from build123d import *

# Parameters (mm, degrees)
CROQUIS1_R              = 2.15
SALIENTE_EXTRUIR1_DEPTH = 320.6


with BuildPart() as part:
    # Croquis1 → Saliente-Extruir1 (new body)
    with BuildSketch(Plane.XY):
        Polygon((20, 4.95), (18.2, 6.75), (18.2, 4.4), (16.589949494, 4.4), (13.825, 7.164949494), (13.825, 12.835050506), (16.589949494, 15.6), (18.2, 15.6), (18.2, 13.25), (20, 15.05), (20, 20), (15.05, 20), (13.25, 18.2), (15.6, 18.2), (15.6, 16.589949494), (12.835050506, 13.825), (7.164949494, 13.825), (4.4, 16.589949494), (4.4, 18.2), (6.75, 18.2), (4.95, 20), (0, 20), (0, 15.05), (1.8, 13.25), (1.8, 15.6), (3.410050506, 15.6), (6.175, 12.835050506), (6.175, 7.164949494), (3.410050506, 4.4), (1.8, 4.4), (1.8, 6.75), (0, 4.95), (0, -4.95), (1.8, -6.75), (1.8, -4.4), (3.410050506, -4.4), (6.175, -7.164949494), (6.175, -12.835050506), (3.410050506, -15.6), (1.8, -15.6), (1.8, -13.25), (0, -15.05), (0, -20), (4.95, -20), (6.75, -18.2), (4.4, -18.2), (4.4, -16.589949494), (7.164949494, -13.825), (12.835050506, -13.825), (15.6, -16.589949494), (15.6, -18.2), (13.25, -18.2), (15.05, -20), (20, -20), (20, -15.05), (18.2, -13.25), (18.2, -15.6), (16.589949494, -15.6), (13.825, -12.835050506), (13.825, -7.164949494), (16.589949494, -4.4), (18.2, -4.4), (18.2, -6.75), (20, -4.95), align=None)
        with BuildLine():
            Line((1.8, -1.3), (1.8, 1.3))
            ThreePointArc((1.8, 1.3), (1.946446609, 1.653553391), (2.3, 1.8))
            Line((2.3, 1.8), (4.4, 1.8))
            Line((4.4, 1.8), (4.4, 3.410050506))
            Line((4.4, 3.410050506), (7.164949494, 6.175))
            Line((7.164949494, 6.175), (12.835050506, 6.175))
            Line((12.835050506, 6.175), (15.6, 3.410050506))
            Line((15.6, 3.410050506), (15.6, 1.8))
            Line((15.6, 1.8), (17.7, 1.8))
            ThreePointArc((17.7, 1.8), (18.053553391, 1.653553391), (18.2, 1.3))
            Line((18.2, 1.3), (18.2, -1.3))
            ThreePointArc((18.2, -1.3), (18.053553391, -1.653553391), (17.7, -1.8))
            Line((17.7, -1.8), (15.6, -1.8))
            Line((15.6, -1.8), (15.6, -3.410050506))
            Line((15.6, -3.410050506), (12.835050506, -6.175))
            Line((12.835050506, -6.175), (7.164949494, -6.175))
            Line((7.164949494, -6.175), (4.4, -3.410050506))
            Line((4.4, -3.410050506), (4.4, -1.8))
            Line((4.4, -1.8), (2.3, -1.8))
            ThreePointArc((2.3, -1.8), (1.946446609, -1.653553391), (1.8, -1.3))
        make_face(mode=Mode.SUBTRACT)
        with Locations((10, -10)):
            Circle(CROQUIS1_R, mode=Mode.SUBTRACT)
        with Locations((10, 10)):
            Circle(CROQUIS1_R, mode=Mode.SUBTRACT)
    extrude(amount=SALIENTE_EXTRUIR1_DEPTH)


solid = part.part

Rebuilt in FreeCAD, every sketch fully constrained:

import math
import FreeCAD as App
import Part
import Sketcher
from FreeCAD import Vector
Q = App.Units.Quantity

doc = App.newDocument("Part")
body = doc.addObject("PartDesign::Body", "Body")

sketch1 = body.newObject("Sketcher::SketchObject", "Sketch")
sketch1.AttachmentSupport = (doc.getObject("XY_Plane"), [""])
sketch1.MapMode = "FlatFace"
sketch1.addGeometry([
    Part.LineSegment(Vector(20, 4.95, 0), Vector(18.2, 6.75, 0)),
    Part.LineSegment(Vector(18.2, 6.75, 0), Vector(18.2, 4.4, 0)),
    Part.LineSegment(Vector(18.2, 4.4, 0), Vector(16.59, 4.4, 0)),
    Part.LineSegment(Vector(16.59, 4.4, 0), Vector(13.82, 7.16, 0)),
    Part.LineSegment(Vector(13.82, 7.16, 0), Vector(13.82, 12.84, 0)),
    Part.LineSegment(Vector(13.82, 12.84, 0), Vector(16.59, 15.6, 0)),
    Part.LineSegment(Vector(16.59, 15.6, 0), Vector(18.2, 15.6, 0)),
    Part.LineSegment(Vector(18.2, 15.6, 0), Vector(18.2, 13.25, 0)),
    Part.LineSegment(Vector(18.2, 13.25, 0), Vector(20, 15.05, 0)),
    Part.LineSegment(Vector(20, 15.05, 0), Vector(20, 20, 0)),
    Part.LineSegment(Vector(20, 20, 0), Vector(15.05, 20, 0)),
    Part.LineSegment(Vector(15.05, 20, 0), Vector(13.25, 18.2, 0)),
    Part.LineSegment(Vector(13.25, 18.2, 0), Vector(15.6, 18.2, 0)),
    Part.LineSegment(Vector(15.6, 18.2, 0), Vector(15.6, 16.59, 0)),
    Part.LineSegment(Vector(15.6, 16.59, 0), Vector(12.84, 13.82, 0)),
    Part.LineSegment(Vector(12.84, 13.82, 0), Vector(7.16, 13.82, 0)),
    Part.LineSegment(Vector(7.16, 13.82, 0), Vector(4.4, 16.59, 0)),
    Part.LineSegment(Vector(4.4, 16.59, 0), Vector(4.4, 18.2, 0)),
    Part.LineSegment(Vector(4.4, 18.2, 0), Vector(6.75, 18.2, 0)),
    Part.LineSegment(Vector(6.75, 18.2, 0), Vector(4.95, 20, 0)),
    Part.LineSegment(Vector(4.95, 20, 0), Vector(0, 20, 0)),
    Part.LineSegment(Vector(0, 20, 0), Vector(0, 15.05, 0)),
    Part.LineSegment(Vector(0, 15.05, 0), Vector(1.8, 13.25, 0)),
    Part.LineSegment(Vector(1.8, 13.25, 0), Vector(1.8, 15.6, 0)),
    Part.LineSegment(Vector(1.8, 15.6, 0), Vector(3.41, 15.6, 0)),
    Part.LineSegment(Vector(3.41, 15.6, 0), Vector(6.17, 12.84, 0)),
    Part.LineSegment(Vector(6.17, 12.84, 0), Vector(6.17, 7.16, 0)),
    Part.LineSegment(Vector(6.17, 7.16, 0), Vector(3.41, 4.4, 0)),
    Part.LineSegment(Vector(3.41, 4.4, 0), Vector(1.8, 4.4, 0)),
    Part.LineSegment(Vector(1.8, 4.4, 0), Vector(1.8, 6.75, 0)),
    Part.LineSegment(Vector(1.8, 6.75, 0), Vector(0, 4.95, 0)),
    Part.LineSegment(Vector(0, 4.95, 0), Vector(0, -4.95, 0)),
    Part.LineSegment(Vector(0, -4.95, 0), Vector(1.8, -6.75, 0)),
    Part.LineSegment(Vector(1.8, -6.75, 0), Vector(1.8, -4.4, 0)),
    Part.LineSegment(Vector(1.8, -4.4, 0), Vector(3.41, -4.4, 0)),
    Part.LineSegment(Vector(3.41, -4.4, 0), Vector(6.17, -7.16, 0)),
    Part.LineSegment(Vector(6.17, -7.16, 0), Vector(6.17, -12.84, 0)),
    Part.LineSegment(Vector(6.17, -12.84, 0), Vector(3.41, -15.6, 0)),
    Part.LineSegment(Vector(3.41, -15.6, 0), Vector(1.8, -15.6, 0)),
    Part.LineSegment(Vector(1.8, -15.6, 0), Vector(1.8, -13.25, 0)),
    Part.LineSegment(Vector(1.8, -13.25, 0), Vector(0, -15.05, 0)),
    Part.LineSegment(Vector(0, -15.05, 0), Vector(0, -20, 0)),
    Part.LineSegment(Vector(0, -20, 0), Vector(4.95, -20, 0)),
    Part.LineSegment(Vector(4.95, -20, 0), Vector(6.75, -18.2, 0)),
    Part.LineSegment(Vector(6.75, -18.2, 0), Vector(4.4, -18.2, 0)),
    Part.LineSegment(Vector(4.4, -18.2, 0), Vector(4.4, -16.59, 0)),
    Part.LineSegment(Vector(4.4, -16.59, 0), Vector(7.16, -13.82, 0)),
    Part.LineSegment(Vector(7.16, -13.82, 0), Vector(12.84, -13.82, 0)),
    Part.LineSegment(Vector(12.84, -13.82, 0), Vector(15.6, -16.59, 0)),
    Part.LineSegment(Vector(15.6, -16.59, 0), Vector(15.6, -18.2, 0)),
    Part.LineSegment(Vector(15.6, -18.2, 0), Vector(13.25, -18.2, 0)),
    Part.LineSegment(Vector(13.25, -18.2, 0), Vector(15.05, -20, 0)),
    Part.LineSegment(Vector(15.05, -20, 0), Vector(20, -20, 0)),
    Part.LineSegment(Vector(20, -20, 0), Vector(20, -15.05, 0)),
    Part.LineSegment(Vector(20, -15.05, 0), Vector(18.2, -13.25, 0)),
    Part.LineSegment(Vector(18.2, -13.25, 0), Vector(18.2, -15.6, 0)),
    Part.LineSegment(Vector(18.2, -15.6, 0), Vector(16.59, -15.6, 0)),
    Part.LineSegment(Vector(16.59, -15.6, 0), Vector(13.82, -12.84, 0)),
    Part.LineSegment(Vector(13.82, -12.84, 0), Vector(13.82, -7.16, 0)),
    Part.LineSegment(Vector(13.82, -7.16, 0), Vector(16.59, -4.4, 0)),
    Part.LineSegment(Vector(16.59, -4.4, 0), Vector(18.2, -4.4, 0)),
    Part.LineSegment(Vector(18.2, -4.4, 0), Vector(18.2, -6.75, 0)),
    Part.LineSegment(Vector(18.2, -6.75, 0), Vector(20, -4.95, 0)),
    Part.LineSegment(Vector(20, -4.95, 0), Vector(20, 4.95, 0)),
    Part.Circle(Vector(10, -10, 0), Vector(0, 0, 1), 2.15),
    Part.ArcOfCircle(Part.Circle(Vector(2.3, -1.3, 0), Vector(0, 0, 1), 0.5), math.radians(180), math.radians(270)),
    Part.LineSegment(Vector(1.8, -1.3, 0), Vector(1.8, 1.3, 0)),
    Part.ArcOfCircle(Part.Circle(Vector(2.3, 1.3, 0), Vector(0, 0, 1), 0.5), math.radians(90), math.radians(180)),
    Part.LineSegment(Vector(2.3, 1.8, 0), Vector(4.4, 1.8, 0)),
    Part.LineSegment(Vector(4.4, 1.8, 0), Vector(4.4, 3.41, 0)),
    Part.LineSegment(Vector(4.4, 3.41, 0), Vector(7.16, 6.17, 0)),
    Part.LineSegment(Vector(7.16, 6.17, 0), Vector(12.84, 6.17, 0)),
    Part.LineSegment(Vector(12.84, 6.17, 0), Vector(15.6, 3.41, 0)),
    Part.LineSegment(Vector(15.6, 3.41, 0), Vector(15.6, 1.8, 0)),
    Part.LineSegment(Vector(15.6, 1.8, 0), Vector(17.7, 1.8, 0)),
    Part.ArcOfCircle(Part.Circle(Vector(17.7, 1.3, 0), Vector(0, 0, 1), 0.5), math.radians(0), math.radians(90)),
    Part.LineSegment(Vector(18.2, 1.3, 0), Vector(18.2, -1.3, 0)),
    Part.ArcOfCircle(Part.Circle(Vector(17.7, -1.3, 0), Vector(0, 0, 1), 0.5), math.radians(-90), math.radians(0)),
    Part.LineSegment(Vector(17.7, -1.8, 0), Vector(15.6, -1.8, 0)),
    Part.LineSegment(Vector(15.6, -1.8, 0), Vector(15.6, -3.41, 0)),
    Part.LineSegment(Vector(15.6, -3.41, 0), Vector(12.84, -6.17, 0)),
    Part.LineSegment(Vector(12.84, -6.17, 0), Vector(7.16, -6.17, 0)),
    Part.LineSegment(Vector(7.16, -6.17, 0), Vector(4.4, -3.41, 0)),
    Part.LineSegment(Vector(4.4, -3.41, 0), Vector(4.4, -1.8, 0)),
    Part.LineSegment(Vector(4.4, -1.8, 0), Vector(2.3, -1.8, 0)),
    Part.Circle(Vector(10, 10, 0), Vector(0, 0, 1), 2.15),
], False)
sketch1.addConstraint([
    Sketcher.Constraint("Coincident", 0, 2, 1, 1),
    Sketcher.Constraint("Coincident", 1, 2, 2, 1),
    Sketcher.Constraint("Coincident", 2, 2, 3, 1),
    Sketcher.Constraint("Coincident", 3, 2, 4, 1),
    Sketcher.Constraint("Coincident", 4, 2, 5, 1),
    Sketcher.Constraint("Coincident", 5, 2, 6, 1),
    Sketcher.Constraint("Coincident", 6, 2, 7, 1),
    Sketcher.Constraint("Coincident", 7, 2, 8, 1),
    Sketcher.Constraint("Coincident", 8, 2, 9, 1),
    Sketcher.Constraint("Coincident", 9, 2, 10, 1),
    Sketcher.Constraint("Coincident", 10, 2, 11, 1),
    Sketcher.Constraint("Coincident", 11, 2, 12, 1),
    Sketcher.Constraint("Coincident", 12, 2, 13, 1),
    Sketcher.Constraint("Coincident", 13, 2, 14, 1),
    Sketcher.Constraint("Coincident", 14, 2, 15, 1),
    Sketcher.Constraint("Coincident", 15, 2, 16, 1),
    Sketcher.Constraint("Coincident", 16, 2, 17, 1),
    Sketcher.Constraint("Coincident", 17, 2, 18, 1),
    Sketcher.Constraint("Coincident", 18, 2, 19, 1),
    Sketcher.Constraint("Coincident", 19, 2, 20, 1),
    Sketcher.Constraint("Coincident", 20, 2, 21, 1),
    Sketcher.Constraint("Coincident", 21, 2, 22, 1),
    Sketcher.Constraint("Coincident", 22, 2, 23, 1),
    Sketcher.Constraint("Coincident", 23, 2, 24, 1),
    Sketcher.Constraint("Coincident", 24, 2, 25, 1),
    Sketcher.Constraint("Coincident", 25, 2, 26, 1),
    Sketcher.Constraint("Coincident", 26, 2, 27, 1),
    Sketcher.Constraint("Coincident", 27, 2, 28, 1),
    Sketcher.Constraint("Coincident", 28, 2, 29, 1),
    Sketcher.Constraint("Coincident", 29, 2, 30, 1),
    Sketcher.Constraint("Coincident", 30, 2, 31, 1),
    Sketcher.Constraint("Coincident", 31, 2, 32, 1),
    Sketcher.Constraint("Coincident", 32, 2, 33, 1),
    Sketcher.Constraint("Coincident", 33, 2, 34, 1),
    Sketcher.Constraint("Coincident", 34, 2, 35, 1),
    Sketcher.Constraint("Coincident", 35, 2, 36, 1),
    Sketcher.Constraint("Coincident", 36, 2, 37, 1),
    Sketcher.Constraint("Coincident", 37, 2, 38, 1),
    Sketcher.Constraint("Coincident", 38, 2, 39, 1),
    Sketcher.Constraint("Coincident", 39, 2, 40, 1),
    Sketcher.Constraint("Coincident", 40, 2, 41, 1),
    Sketcher.Constraint("Coincident", 41, 2, 42, 1),
    Sketcher.Constraint("Coincident", 42, 2, 43, 1),
    Sketcher.Constraint("Coincident", 43, 2, 44, 1),
    Sketcher.Constraint("Coincident", 44, 2, 45, 1),
    Sketcher.Constraint("Coincident", 45, 2, 46, 1),
    Sketcher.Constraint("Coincident", 46, 2, 47, 1),
    Sketcher.Constraint("Coincident", 47, 2, 48, 1),
    Sketcher.Constraint("Coincident", 48, 2, 49, 1),
    Sketcher.Constraint("Coincident", 49, 2, 50, 1),
    Sketcher.Constraint("Coincident", 50, 2, 51, 1),
    Sketcher.Constraint("Coincident", 51, 2, 52, 1),
    Sketcher.Constraint("Coincident", 52, 2, 53, 1),
    Sketcher.Constraint("Coincident", 53, 2, 54, 1),
    Sketcher.Constraint("Coincident", 54, 2, 55, 1),
    Sketcher.Constraint("Coincident", 55, 2, 56, 1),
    Sketcher.Constraint("Coincident", 56, 2, 57, 1),
    Sketcher.Constraint("Coincident", 57, 2, 58, 1),
    Sketcher.Constraint("Coincident", 58, 2, 59, 1),
    Sketcher.Constraint("Coincident", 59, 2, 60, 1),
    Sketcher.Constraint("Coincident", 60, 2, 61, 1),
    Sketcher.Constraint("Coincident", 61, 2, 62, 1),
    Sketcher.Constraint("Coincident", 62, 2, 63, 1),
    Sketcher.Constraint("Coincident", 63, 2, 0, 1),
    Sketcher.Constraint("Tangent", 65, 1, 66, 1),
    Sketcher.Constraint("Tangent", 66, 2, 67, 2),
    Sketcher.Constraint("Tangent", 67, 1, 68, 1),
    Sketcher.Constraint("Coincident", 68, 2, 69, 1),
    Sketcher.Constraint("Coincident", 69, 2, 70, 1),
    Sketcher.Constraint("Coincident", 70, 2, 71, 1),
    Sketcher.Constraint("Coincident", 71, 2, 72, 1),
    Sketcher.Constraint("Coincident", 72, 2, 73, 1),
    Sketcher.Constraint("Coincident", 73, 2, 74, 1),
    Sketcher.Constraint("Tangent", 74, 2, 75, 2),
    Sketcher.Constraint("Tangent", 75, 1, 76, 1),
    Sketcher.Constraint("Tangent", 76, 2, 77, 2),
    Sketcher.Constraint("Tangent", 77, 1, 78, 1),
    Sketcher.Constraint("Coincident", 78, 2, 79, 1),
    Sketcher.Constraint("Coincident", 79, 2, 80, 1),
    Sketcher.Constraint("Coincident", 80, 2, 81, 1),
    Sketcher.Constraint("Coincident", 81, 2, 82, 1),
    Sketcher.Constraint("Coincident", 82, 2, 83, 1),
    Sketcher.Constraint("Coincident", 83, 2, 84, 1),
    Sketcher.Constraint("Tangent", 84, 2, 65, 2),
    Sketcher.Constraint("Vertical", 1),
    Sketcher.Constraint("Horizontal", 2),
    Sketcher.Constraint("Vertical", 4),
    Sketcher.Constraint("Horizontal", 6),
    Sketcher.Constraint("Vertical", 7),
    Sketcher.Constraint("Vertical", 9),
    Sketcher.Constraint("Horizontal", 10),
    Sketcher.Constraint("Horizontal", 12),
    Sketcher.Constraint("Vertical", 13),
    Sketcher.Constraint("Horizontal", 15),
    Sketcher.Constraint("Vertical", 17),
    Sketcher.Constraint("Horizontal", 18),
    Sketcher.Constraint("Horizontal", 20),
    Sketcher.Constraint("Vertical", 21),
    Sketcher.Constraint("Vertical", 23),
    Sketcher.Constraint("Horizontal", 24),
    Sketcher.Constraint("Vertical", 26),
    Sketcher.Constraint("Horizontal", 28),
    Sketcher.Constraint("Vertical", 29),
    Sketcher.Constraint("Vertical", 31),
    Sketcher.Constraint("Vertical", 33),
    Sketcher.Constraint("Horizontal", 34),
    Sketcher.Constraint("Vertical", 36),
    Sketcher.Constraint("Horizontal", 38),
    Sketcher.Constraint("Vertical", 39),
    Sketcher.Constraint("Vertical", 41),
    Sketcher.Constraint("Horizontal", 42),
    Sketcher.Constraint("Horizontal", 44),
    Sketcher.Constraint("Vertical", 45),
    Sketcher.Constraint("Horizontal", 47),
    Sketcher.Constraint("Vertical", 49),
    Sketcher.Constraint("Horizontal", 50),
    Sketcher.Constraint("Horizontal", 52),
    Sketcher.Constraint("Vertical", 53),
    Sketcher.Constraint("Vertical", 55),
    Sketcher.Constraint("Horizontal", 56),
    Sketcher.Constraint("Vertical", 58),
    Sketcher.Constraint("Horizontal", 60),
    Sketcher.Constraint("Vertical", 61),
    Sketcher.Constraint("Vertical", 63),
    Sketcher.Constraint("Vertical", 66),
    Sketcher.Constraint("Horizontal", 68),
    Sketcher.Constraint("Vertical", 69),
    Sketcher.Constraint("Horizontal", 71),
    Sketcher.Constraint("Vertical", 73),
    Sketcher.Constraint("Horizontal", 74),
    Sketcher.Constraint("Vertical", 76),
    Sketcher.Constraint("Horizontal", 78),
    Sketcher.Constraint("Vertical", 79),
    Sketcher.Constraint("Horizontal", 81),
    Sketcher.Constraint("Vertical", 83),
    Sketcher.Constraint("Horizontal", 84),
    Sketcher.Constraint("Equal", 65, 67),
    Sketcher.Constraint("Equal", 67, 75),
    Sketcher.Constraint("Equal", 75, 77),
    Sketcher.Constraint("Equal", 64, 85),
    Sketcher.Constraint("Symmetric", 30, 2, 31, 2, -1, 1),
    Sketcher.Constraint("Symmetric", 21, 2, 40, 2, -1, 1),
    Sketcher.Constraint("Symmetric", 64, 3, 85, 3, -1),
    Sketcher.Constraint("Symmetric", 29, 2, 32, 2, -1),
    Sketcher.Constraint("Symmetric", 27, 2, 34, 2, -1),
    Sketcher.Constraint("Symmetric", 26, 2, 35, 2, -1),
    Sketcher.Constraint("Symmetric", 24, 2, 37, 2, -1),
    Sketcher.Constraint("Symmetric", 22, 2, 39, 2, -1),
    Sketcher.Constraint("Symmetric", 20, 2, 41, 2, -1),
    Sketcher.Constraint("Symmetric", 18, 2, 43, 2, -1),
    Sketcher.Constraint("Symmetric", 16, 2, 45, 2, -1),
    Sketcher.Constraint("Symmetric", 15, 2, 46, 2, -1),
    Sketcher.Constraint("Symmetric", 13, 2, 48, 2, -1),
    Sketcher.Constraint("Symmetric", 11, 2, 50, 2, -1),
    Sketcher.Constraint("Symmetric", 10, 2, 51, 2, -1),
    Sketcher.Constraint("Symmetric", 8, 2, 53, 2, -1),
    Sketcher.Constraint("Symmetric", 7, 2, 54, 2, -1),
    Sketcher.Constraint("Symmetric", 5, 2, 56, 2, -1),
    Sketcher.Constraint("Symmetric", 4, 2, 57, 2, -1),
    Sketcher.Constraint("Symmetric", 2, 2, 59, 2, -1),
    Sketcher.Constraint("Symmetric", 0, 2, 61, 2, -1),
    Sketcher.Constraint("Symmetric", 73, 2, 78, 2, -1),
    Sketcher.Constraint("Symmetric", 71, 2, 80, 2, -1),
    Sketcher.Constraint("Symmetric", 69, 2, 82, 2, -1),
    Sketcher.Constraint("Parallel", 0, 3),
    Sketcher.Constraint("Perpendicular", 3, 5),
    Sketcher.Constraint("Parallel", 5, 8),
    Sketcher.Constraint("Parallel", 8, 11),
    Sketcher.Constraint("Parallel", 11, 14),
    Sketcher.Constraint("Perpendicular", 14, 16),
    Sketcher.Constraint("Parallel", 16, 19),
    Sketcher.Constraint("Parallel", 19, 22),
    Sketcher.Constraint("Parallel", 22, 25),
    Sketcher.Constraint("Perpendicular", 25, 27),
    Sketcher.Constraint("Parallel", 27, 30),
    Sketcher.Constraint("Perpendicular", 30, 32),
    Sketcher.Constraint("Perpendicular", 35, 37),
    Sketcher.Constraint("Parallel", 40, 43),
    Sketcher.Constraint("Perpendicular", 46, 48),
    Sketcher.Constraint("Perpendicular", 57, 59),
    Sketcher.Constraint("Parallel", 59, 62),
    Sketcher.Constraint("Parallel", 62, 70),
    Sketcher.Constraint("Perpendicular", 70, 72),
    Sketcher.Constraint("Perpendicular", 72, 80),
    Sketcher.Constraint("Perpendicular", 80, 82),
    Sketcher.Constraint("Horizontal", 67, 3, 75, 3),
    Sketcher.Constraint("Horizontal", 65, 3, 77, 3),
    Sketcher.Constraint("Horizontal", 13, 2, 16, 2),
    Sketcher.Constraint("Horizontal", 12, 2, 17, 2),
    Sketcher.Constraint("Horizontal", 10, 2, 19, 2),
    Sketcher.Constraint("Horizontal", 8, 2, 21, 2),
    Sketcher.Constraint("Horizontal", 7, 2, 22, 2),
    Sketcher.Constraint("Horizontal", 6, 2, 23, 2),
    Sketcher.Constraint("Horizontal", 4, 2, 25, 2),
    Sketcher.Constraint("Horizontal", 3, 2, 26, 2),
    Sketcher.Constraint("Horizontal", 2, 2, 27, 2),
    Sketcher.Constraint("Horizontal", 0, 2, 29, 2),
    Sketcher.Constraint("Horizontal", 31, 2, 62, 2),
    Sketcher.Constraint("Horizontal", 69, 2, 72, 2),
    Sketcher.Constraint("Vertical", 2, 2, 5, 2),
    Sketcher.Constraint("Vertical", 1, 2, 6, 2),
    Sketcher.Constraint("Vertical", 23, 2, 28, 2),
    Sketcher.Constraint("Vertical", 39, 2, 65, 1),
    Sketcher.Constraint("Vertical", 45, 2, 68, 2),
    Sketcher.Constraint("Vertical", 46, 2, 70, 2),
    Sketcher.Constraint("Vertical", 47, 2, 71, 2),
    Sketcher.Constraint("Vertical", 61, 2, 75, 1),
    Sketcher.Constraint("Equal", 12, 18),
    Sketcher.Constraint("Equal", 10, 20),
    Sketcher.Constraint("Equal", 6, 24),
    Sketcher.Constraint("Equal", 50, 1),
    Sketcher.Constraint("Equal", 81, 4),
    Sketcher.Constraint("Equal", 1, 7),
    Sketcher.Constraint("Equal", 52, 9),
    Sketcher.Constraint("Equal", 60, 13),
    Sketcher.Constraint("Equal", 49, 69),
    Sketcher.Constraint("Equal", 8, 11),
    Sketcher.Constraint("Equal", 5, 14),
    Sketcher.Constraint("Diameter", 64, Q("4.3 mm")),
    Sketcher.Constraint("Radius", 65, Q("0.5 mm")),
    Sketcher.Constraint("DistanceX", 68, 1, 68, 2, Q("2.1 mm")),
    Sketcher.Constraint("DistanceY", 31, 2, 31, 1, Q("9.9 mm")),
    Sketcher.Constraint("DistanceY", 66, 1, 66, 2, Q("2.6 mm")),
    Sketcher.Constraint("DistanceX", -1, 1, 64, 3, Q("10 mm")),
    Sketcher.Constraint("DistanceY", 64, 3, -1, 1, Q("10 mm")),
    Sketcher.Constraint("DistanceX", -1, 1, 8, 2, Q("20 mm")),
    Sketcher.Constraint("DistanceY", -1, 1, 9, 2, Q("20 mm")),
    Sketcher.Constraint("DistanceX", -1, 1, 65, 3, Q("2.3 mm")),
    Sketcher.Constraint("DistanceX", 15, 2, 15, 1, Q("5.670101 mm")),
    Sketcher.Constraint("DistanceX", -1, 1, 3, 2, Q("13.825 mm")),
])
pad1 = body.newObject("PartDesign::Pad", "Pad")
pad1.Profile = sketch1
pad1.Length = 320.6

doc.recompute()
